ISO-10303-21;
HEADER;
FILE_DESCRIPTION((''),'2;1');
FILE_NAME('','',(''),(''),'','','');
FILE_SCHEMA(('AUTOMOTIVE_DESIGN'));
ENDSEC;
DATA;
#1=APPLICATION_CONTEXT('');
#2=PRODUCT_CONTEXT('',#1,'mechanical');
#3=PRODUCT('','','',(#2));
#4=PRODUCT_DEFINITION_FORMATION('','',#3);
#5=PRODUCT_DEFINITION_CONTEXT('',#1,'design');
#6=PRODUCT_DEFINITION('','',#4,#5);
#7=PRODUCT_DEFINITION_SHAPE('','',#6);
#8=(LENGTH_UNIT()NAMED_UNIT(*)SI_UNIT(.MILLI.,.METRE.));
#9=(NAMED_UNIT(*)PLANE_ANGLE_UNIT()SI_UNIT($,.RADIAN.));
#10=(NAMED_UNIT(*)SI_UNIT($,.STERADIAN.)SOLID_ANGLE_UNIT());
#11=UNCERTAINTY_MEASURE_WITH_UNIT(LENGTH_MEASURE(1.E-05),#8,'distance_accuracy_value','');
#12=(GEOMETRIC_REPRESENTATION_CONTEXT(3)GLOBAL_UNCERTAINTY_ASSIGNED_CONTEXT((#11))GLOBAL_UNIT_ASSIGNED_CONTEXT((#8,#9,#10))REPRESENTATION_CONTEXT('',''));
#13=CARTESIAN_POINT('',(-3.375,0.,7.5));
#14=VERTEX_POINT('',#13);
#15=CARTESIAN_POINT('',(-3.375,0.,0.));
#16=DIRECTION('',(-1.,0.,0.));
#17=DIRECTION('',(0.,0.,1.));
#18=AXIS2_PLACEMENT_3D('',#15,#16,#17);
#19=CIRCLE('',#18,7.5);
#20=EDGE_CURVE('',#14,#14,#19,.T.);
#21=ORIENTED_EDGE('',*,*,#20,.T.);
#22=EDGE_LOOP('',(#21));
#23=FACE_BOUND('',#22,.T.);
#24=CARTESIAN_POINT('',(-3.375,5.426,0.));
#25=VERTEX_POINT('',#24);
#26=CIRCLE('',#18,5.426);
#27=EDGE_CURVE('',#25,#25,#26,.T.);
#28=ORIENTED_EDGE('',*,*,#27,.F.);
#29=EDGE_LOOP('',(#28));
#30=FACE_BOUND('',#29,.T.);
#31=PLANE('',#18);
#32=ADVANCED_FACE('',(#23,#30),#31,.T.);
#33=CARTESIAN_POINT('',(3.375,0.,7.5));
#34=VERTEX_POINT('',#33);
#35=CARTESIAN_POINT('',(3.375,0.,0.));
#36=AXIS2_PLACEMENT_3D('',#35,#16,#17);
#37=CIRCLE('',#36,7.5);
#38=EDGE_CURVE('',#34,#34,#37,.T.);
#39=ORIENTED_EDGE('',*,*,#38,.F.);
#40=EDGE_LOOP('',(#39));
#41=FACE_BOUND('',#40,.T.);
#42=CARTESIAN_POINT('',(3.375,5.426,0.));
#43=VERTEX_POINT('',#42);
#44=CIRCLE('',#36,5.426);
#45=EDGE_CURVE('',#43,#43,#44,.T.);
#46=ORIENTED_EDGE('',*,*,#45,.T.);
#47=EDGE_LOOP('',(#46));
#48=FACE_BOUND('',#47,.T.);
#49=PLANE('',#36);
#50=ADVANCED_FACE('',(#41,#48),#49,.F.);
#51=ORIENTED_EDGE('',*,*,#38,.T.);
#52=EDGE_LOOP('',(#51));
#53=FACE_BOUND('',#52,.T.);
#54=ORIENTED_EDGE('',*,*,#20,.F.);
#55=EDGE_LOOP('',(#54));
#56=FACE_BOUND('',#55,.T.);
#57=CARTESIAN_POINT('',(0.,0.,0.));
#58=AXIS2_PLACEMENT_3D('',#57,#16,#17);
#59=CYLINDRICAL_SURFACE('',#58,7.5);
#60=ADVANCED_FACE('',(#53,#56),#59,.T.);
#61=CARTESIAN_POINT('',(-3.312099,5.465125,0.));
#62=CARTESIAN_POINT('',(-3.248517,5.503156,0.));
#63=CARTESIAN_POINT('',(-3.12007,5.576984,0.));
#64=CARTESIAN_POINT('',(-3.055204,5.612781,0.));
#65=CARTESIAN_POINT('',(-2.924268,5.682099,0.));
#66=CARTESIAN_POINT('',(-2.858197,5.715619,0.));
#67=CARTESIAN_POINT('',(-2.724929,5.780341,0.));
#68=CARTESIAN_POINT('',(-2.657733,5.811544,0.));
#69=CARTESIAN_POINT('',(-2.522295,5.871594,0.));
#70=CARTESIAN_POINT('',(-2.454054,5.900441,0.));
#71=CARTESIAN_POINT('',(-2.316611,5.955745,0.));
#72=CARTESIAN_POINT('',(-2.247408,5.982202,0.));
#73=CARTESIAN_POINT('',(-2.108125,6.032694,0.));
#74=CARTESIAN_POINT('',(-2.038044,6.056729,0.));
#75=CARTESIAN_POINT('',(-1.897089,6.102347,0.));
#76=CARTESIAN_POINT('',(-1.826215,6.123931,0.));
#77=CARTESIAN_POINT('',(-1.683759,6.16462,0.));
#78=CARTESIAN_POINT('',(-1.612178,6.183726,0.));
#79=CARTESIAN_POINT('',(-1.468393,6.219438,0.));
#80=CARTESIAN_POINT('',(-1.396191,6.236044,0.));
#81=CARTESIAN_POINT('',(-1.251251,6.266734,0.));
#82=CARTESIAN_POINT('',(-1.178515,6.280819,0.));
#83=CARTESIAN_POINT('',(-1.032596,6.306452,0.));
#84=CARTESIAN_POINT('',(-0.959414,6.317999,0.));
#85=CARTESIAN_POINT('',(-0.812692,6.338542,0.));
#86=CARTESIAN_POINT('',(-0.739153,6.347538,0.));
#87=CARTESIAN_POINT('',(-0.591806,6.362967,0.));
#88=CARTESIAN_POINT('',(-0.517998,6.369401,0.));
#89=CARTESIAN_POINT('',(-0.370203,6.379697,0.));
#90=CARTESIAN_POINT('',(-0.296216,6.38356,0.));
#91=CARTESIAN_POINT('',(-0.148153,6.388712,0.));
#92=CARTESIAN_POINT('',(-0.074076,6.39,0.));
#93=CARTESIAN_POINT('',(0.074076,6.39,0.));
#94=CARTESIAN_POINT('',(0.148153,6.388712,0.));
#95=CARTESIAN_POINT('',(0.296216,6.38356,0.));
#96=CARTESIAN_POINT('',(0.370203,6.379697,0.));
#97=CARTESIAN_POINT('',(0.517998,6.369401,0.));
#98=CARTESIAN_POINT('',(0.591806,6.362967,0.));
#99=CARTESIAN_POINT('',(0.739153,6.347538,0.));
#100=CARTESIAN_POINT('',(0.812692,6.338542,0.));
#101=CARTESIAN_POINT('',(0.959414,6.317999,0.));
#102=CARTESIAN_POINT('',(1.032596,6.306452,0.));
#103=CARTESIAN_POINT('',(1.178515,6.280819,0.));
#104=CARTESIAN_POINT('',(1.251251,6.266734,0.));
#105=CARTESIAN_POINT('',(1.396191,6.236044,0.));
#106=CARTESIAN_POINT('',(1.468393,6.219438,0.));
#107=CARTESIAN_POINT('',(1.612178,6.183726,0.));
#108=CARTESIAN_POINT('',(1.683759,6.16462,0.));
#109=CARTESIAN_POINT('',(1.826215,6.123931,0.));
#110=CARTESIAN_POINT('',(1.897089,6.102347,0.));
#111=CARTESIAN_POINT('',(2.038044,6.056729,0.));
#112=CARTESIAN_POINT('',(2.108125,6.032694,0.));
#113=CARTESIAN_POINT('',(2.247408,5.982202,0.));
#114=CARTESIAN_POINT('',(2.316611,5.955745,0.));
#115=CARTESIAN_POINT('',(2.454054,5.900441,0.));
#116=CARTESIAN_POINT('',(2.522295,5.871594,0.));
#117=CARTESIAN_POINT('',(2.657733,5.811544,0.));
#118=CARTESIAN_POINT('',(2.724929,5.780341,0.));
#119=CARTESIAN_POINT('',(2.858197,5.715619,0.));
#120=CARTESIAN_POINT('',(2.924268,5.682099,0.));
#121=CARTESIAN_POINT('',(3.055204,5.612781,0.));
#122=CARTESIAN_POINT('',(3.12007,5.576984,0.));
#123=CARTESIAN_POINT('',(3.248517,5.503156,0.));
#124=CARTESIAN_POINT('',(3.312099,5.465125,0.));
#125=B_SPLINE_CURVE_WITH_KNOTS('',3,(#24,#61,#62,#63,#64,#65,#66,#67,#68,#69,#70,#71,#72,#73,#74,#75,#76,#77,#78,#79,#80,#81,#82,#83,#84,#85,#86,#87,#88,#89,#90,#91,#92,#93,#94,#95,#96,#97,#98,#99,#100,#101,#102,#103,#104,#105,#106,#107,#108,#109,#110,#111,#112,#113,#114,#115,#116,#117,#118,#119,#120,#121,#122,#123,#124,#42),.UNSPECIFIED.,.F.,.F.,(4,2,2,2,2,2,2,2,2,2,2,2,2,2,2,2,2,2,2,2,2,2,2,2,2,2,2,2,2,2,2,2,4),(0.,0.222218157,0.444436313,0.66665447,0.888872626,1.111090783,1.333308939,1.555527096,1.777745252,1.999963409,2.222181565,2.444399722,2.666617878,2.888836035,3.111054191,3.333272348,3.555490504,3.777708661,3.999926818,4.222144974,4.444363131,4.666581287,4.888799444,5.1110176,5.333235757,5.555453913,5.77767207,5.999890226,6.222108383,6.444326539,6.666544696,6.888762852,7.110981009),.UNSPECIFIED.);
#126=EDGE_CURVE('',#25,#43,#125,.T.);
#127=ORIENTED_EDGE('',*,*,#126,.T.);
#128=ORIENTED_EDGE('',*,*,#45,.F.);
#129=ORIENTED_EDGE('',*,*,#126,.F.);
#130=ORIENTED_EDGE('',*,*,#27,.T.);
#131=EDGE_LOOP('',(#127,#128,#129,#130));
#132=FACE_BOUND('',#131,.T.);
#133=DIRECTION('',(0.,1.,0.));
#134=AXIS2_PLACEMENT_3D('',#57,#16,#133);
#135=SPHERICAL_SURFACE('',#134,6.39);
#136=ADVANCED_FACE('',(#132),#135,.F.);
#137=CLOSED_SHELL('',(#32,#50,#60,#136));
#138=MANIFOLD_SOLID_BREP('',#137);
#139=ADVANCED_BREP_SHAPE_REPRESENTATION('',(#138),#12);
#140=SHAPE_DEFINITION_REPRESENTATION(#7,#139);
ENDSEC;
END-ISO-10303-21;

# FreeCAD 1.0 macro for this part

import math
import FreeCAD as App
import Part
import Sketcher

doc = App.newDocument("Part")
params = doc.addObject("Spreadsheet::Sheet", "Params")
for row, (alias, value) in enumerate([
    ("sketch1_radius", "6.39 mm"),
    ("sketch1_width", "6.75 mm"),
    ("revolution_angle", "360 deg"),
], start=1):
    params.set(f"A{row}", alias)
    params.set(f"B{row}", "=" + value)
    params.setAlias(f"B{row}", alias)

body = doc.addObject("PartDesign::Body", "Body")

sketch1 = doc.addObject("Sketcher::SketchObject", "Sketch")
body.addObject(sketch1)
sketch1.AttachmentSupport = (doc.XY_Plane, [""])
sketch1.MapMode = "FlatFace"
sketch1.addGeometry([
    Part.LineSegment(App.Vector(-3.375, 7.5, 0), App.Vector(-3.375, 5.426, 0)),
    Part.ArcOfCircle(Part.Circle(App.Vector(0, 0, 0), App.Vector(0, 0, 1), 6.39), math.radians(58.118174), math.radians(121.881826)),
    Part.LineSegment(App.Vector(3.375, 5.426, 0), App.Vector(3.375, 7.5, 0)),
    Part.LineSegment(App.Vector(3.375, 7.5, 0), App.Vector(-3.375, 7.5, 0)),
], False)
sketch1.addConstraint([
    Sketcher.Constraint("Coincident", 0, 2, 1, 2),
    Sketcher.Constraint("Coincident", 1, 1, 2, 1),
    Sketcher.Constraint("Coincident", 2, 2, 3, 1),
    Sketcher.Constraint("Coincident", 3, 2, 0, 1),
    Sketcher.Constraint("Vertical", 0),
    Sketcher.Constraint("Vertical", 2),
    Sketcher.Constraint("Horizontal", 3),
    Sketcher.Constraint("Coincident", 1, 3, -1, 1),
    Sketcher.Constraint("Horizontal", 0, 2, 1, 1),
    Sketcher.Constraint("Radius", 1, 6.39),
    Sketcher.Constraint("DistanceX", 3, 2, 3, 1, 6.75),
    Sketcher.Constraint("DistanceY", -1, 1, 2, 2, 7.5),
])
sketch1.setExpression("Constraints[9]", "Params.sketch1_radius")
sketch1.setExpression("Constraints[10]", "Params.sketch1_width")
revolution = doc.addObject("PartDesign::Revolution", "Revolution")
body.addObject(revolution)
revolution.Profile = sketch1
revolution.ReferenceAxis = (sketch1, ["H_Axis"])
revolution.setExpression("Angle", "Params.revolution_angle")

doc.recompute()
